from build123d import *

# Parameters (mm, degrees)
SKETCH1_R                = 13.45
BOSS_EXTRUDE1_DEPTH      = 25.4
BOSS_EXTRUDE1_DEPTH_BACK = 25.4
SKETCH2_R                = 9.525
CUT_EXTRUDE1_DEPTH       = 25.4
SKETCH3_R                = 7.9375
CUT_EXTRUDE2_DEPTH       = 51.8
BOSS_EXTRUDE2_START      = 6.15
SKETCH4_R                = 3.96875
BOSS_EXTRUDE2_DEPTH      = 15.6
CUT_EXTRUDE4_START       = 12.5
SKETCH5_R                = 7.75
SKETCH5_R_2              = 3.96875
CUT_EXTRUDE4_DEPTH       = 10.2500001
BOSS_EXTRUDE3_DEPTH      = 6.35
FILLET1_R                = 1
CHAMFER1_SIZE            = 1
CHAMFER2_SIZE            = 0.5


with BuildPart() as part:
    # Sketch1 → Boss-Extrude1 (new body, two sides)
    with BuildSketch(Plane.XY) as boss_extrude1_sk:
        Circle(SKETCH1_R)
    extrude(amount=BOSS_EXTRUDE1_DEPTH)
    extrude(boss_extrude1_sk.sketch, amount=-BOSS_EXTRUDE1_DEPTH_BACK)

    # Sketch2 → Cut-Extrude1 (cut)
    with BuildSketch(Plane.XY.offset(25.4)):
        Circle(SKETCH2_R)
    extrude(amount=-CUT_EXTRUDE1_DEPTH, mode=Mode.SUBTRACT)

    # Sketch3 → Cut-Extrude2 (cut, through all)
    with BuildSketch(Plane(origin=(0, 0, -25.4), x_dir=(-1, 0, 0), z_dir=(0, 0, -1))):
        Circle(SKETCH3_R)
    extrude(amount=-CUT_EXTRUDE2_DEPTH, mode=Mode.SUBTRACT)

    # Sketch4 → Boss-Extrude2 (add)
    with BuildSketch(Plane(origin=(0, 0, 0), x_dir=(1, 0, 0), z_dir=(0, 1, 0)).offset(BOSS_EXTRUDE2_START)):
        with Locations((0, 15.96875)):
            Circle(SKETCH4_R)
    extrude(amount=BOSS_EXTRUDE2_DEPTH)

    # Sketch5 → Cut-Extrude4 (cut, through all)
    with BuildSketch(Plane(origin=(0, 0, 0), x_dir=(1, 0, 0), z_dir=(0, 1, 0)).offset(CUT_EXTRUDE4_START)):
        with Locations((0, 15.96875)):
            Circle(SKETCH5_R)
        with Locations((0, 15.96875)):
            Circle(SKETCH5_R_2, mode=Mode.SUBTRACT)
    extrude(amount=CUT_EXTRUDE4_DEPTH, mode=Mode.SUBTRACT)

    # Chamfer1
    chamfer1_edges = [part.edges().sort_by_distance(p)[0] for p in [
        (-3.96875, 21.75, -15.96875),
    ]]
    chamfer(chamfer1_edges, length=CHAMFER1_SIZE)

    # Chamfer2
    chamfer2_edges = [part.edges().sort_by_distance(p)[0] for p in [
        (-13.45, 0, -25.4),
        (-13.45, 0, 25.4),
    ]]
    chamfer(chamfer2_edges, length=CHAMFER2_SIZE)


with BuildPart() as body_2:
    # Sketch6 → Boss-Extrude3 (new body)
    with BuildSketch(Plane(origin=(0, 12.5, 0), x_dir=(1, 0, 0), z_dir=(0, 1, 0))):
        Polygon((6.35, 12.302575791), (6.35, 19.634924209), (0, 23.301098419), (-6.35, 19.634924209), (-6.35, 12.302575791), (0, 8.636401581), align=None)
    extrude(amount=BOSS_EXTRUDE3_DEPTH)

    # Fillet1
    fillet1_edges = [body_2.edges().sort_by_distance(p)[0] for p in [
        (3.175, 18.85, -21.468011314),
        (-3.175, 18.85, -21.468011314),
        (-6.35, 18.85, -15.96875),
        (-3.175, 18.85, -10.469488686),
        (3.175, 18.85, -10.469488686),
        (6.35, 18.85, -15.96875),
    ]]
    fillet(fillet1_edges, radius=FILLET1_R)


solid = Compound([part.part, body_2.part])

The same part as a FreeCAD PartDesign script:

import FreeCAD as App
import Part
import Sketcher
from FreeCAD import Vector
Q = App.Units.Quantity


def edges_at(feature, points):
    """Names of the edges that pass closest to the given points."""
    edges = feature.Shape.Edges
    near = lambda p: min(range(len(edges)), key=lambda i: edges[i].distToShape(Part.Vertex(*p))[0])
    return sorted({f"Edge{near(p) + 1}" for p in points})


def add_polygon(sketch, points):
    """Adds a closed chain of lines whose ends are joined by coincident constraints."""
    first, n = sketch.GeometryCount, len(points)
    for a, b in zip(points, points[1:] + points[:1]):
        sketch.addGeometry(Part.LineSegment(App.Vector(*a, 0), App.Vector(*b, 0)), False)
    for i in range(n):
        sketch.addConstraint(Sketcher.Constraint("Coincident", first + i, 2, first + (i + 1) % n, 1))

doc = App.newDocument("Part")
body = doc.addObject("PartDesign::Body", "Body")

# Sketch on XY plane
sketch1 = doc.addObject("Sketcher::SketchObject", "Sketch")
body.addObject(sketch1)
sketch1.AttachmentSupport = (doc.XY_Plane, [""])
sketch1.MapMode = "FlatFace"
sketch1.addGeometry(Part.Circle(Vector(0, 0, 0), Vector(0, 0, 1), 13), False)
sketch1.addConstraint(Sketcher.Constraint("Coincident", 0, 3, -1, 1))
sketch1.addConstraint(Sketcher.Constraint("Diameter", 0, Q("26.9 mm")))
pad1 = doc.addObject("PartDesign::Pad", "Pad")
body.addObject(pad1)
pad1.Profile = sketch1
pad1.Type = "TwoLengths"
pad1.Length = 25.4
pad1.Length2 = 25.4

# Sketch on XY plane
sketch2 = doc.addObject("Sketcher::SketchObject", "Sketch001")
body.addObject(sketch2)
sketch2.AttachmentSupport = (doc.XY_Plane, [""])
sketch2.MapMode = "FlatFace"
sketch2.AttachmentOffset = App.Placement(Vector(0, 0, 25.4), App.Rotation())
sketch2.addGeometry(Part.Circle(Vector(0, 0, 0), Vector(0, 0, 1), 10), False)
sketch2.addConstraint(Sketcher.Constraint("Coincident", 0, 3, -1, 1))
sketch2.addConstraint(Sketcher.Constraint("Diameter", 0, Q("19.05 mm")))
pocket1 = doc.addObject("PartDesign::Pocket", "Pocket")
body.addObject(pocket1)
pocket1.Profile = sketch2
pocket1.Length = 25.4

# Sketch on XY plane
sketch3 = doc.addObject("Sketcher::SketchObject", "Sketch002")
body.addObject(sketch3)
sketch3.AttachmentSupport = (doc.XY_Plane, [""])
sketch3.MapMode = "FlatFace"
sketch3.AttachmentOffset = App.Placement(Vector(0, 0, -25.4), App.Rotation())
sketch3.addGeometry(Part.Circle(Vector(0, 0, 0), Vector(0, 0, 1), 8), False)
sketch3.addConstraint(Sketcher.Constraint("Coincident", 0, 3, -1, 1))
sketch3.addConstraint(Sketcher.Constraint("Diameter", 0, Q("15.875 mm")))
pocket2 = doc.addObject("PartDesign::Pocket", "Pocket001")
body.addObject(pocket2)
pocket2.Profile = sketch3
pocket2.Type = "ThroughAll"
pocket2.Reversed = True

# Sketch on XZ plane
sketch4 = doc.addObject("Sketcher::SketchObject", "Sketch003")
body.addObject(sketch4)
sketch4.AttachmentSupport = (doc.XZ_Plane, [""])
sketch4.MapMode = "FlatFace"
sketch4.AttachmentOffset = App.Placement(Vector(0, 0, -6.15), App.Rotation())
sketch4.addGeometry(Part.Circle(Vector(0, -16, 0), Vector(0, 0, 1), 4), False)
sketch4.addConstraint(Sketcher.Constraint("PointOnObject", 0, 3, -2))
sketch4.addConstraint(Sketcher.Constraint("Diameter", 0, Q("7.9375 mm")))
sketch4.addConstraint(Sketcher.Constraint("DistanceY", 0, 3, -1, 1, Q("15.96875 mm")))
pad2 = doc.addObject("PartDesign::Pad", "Pad001")
body.addObject(pad2)
pad2.Profile = sketch4
pad2.Length = 15.6
pad2.Reversed = True

# Sketch on XZ plane
sketch5 = doc.addObject("Sketcher::SketchObject", "Sketch004")
body.addObject(sketch5)
sketch5.AttachmentSupport = (doc.XZ_Plane, [""])
sketch5.MapMode = "FlatFace"
sketch5.AttachmentOffset = App.Placement(Vector(0, 0, -12.5), App.Rotation())
sketch5.addGeometry(Part.Circle(Vector(0, -16, 0), Vector(0, 0, 1), 7.8), False)
sketch5.addGeometry(Part.Circle(Vector(0, -16, 0), Vector(0, 0, 1), 4), False)
sketch5.addConstraint(Sketcher.Constraint("Coincident", 1, 3, 0, 3))
sketch5.addConstraint(Sketcher.Constraint("PointOnObject", 0, 3, -2))
sketch5.addConstraint(Sketcher.Constraint("Diameter", 0, Q("15.5 mm")))
sketch5.addConstraint(Sketcher.Constraint("Diameter", 1, Q("7.9375 mm")))
sketch5.addConstraint(Sketcher.Constraint("DistanceY", 0, 3, -1, 1, Q("15.96875 mm")))
pocket3 = doc.addObject("PartDesign::Pocket", "Pocket002")
body.addObject(pocket3)
pocket3.Profile = sketch5
pocket3.Type = "ThroughAll"
doc.recompute()

chamfer = doc.addObject("PartDesign::Chamfer", "Chamfer")
body.addObject(chamfer)
chamfer.Base = (pocket3, edges_at(pocket3, [(-3.969, 21.75, -15.969)]))
chamfer.Size = 1
doc.recompute()

chamfer2 = doc.addObject("PartDesign::Chamfer", "Chamfer001")
body.addObject(chamfer2)
chamfer2.Base = (chamfer, edges_at(chamfer, [(-13.45, 0, -25.4), (-13.45, 0, 25.4)]))
chamfer2.Size = 0.5
body2 = doc.addObject("PartDesign::Body", "Body001")

# Sketch on XZ plane
sketch6 = doc.addObject("Sketcher::SketchObject", "Sketch005")
body2.addObject(sketch6)
sketch6.AttachmentSupport = (doc.getObject("XZ_Plane001"), [""])
sketch6.MapMode = "FlatFace"
sketch6.AttachmentOffset = App.Placement(Vector(0, 0, -12.5), App.Rotation())
add_polygon(sketch6, [(6, -12), (6, -20), (0, -23), (-6, -20), (-6, -12), (0, -9)])  # lines 0-5
sketch6.addConstraint(Sketcher.Constraint("Vertical", 0))
sketch6.addConstraint(Sketcher.Constraint("Vertical", 3))
sketch6.addConstraint(Sketcher.Constraint("Symmetric", 0, 2, 2, 2, -2))
sketch6.addConstraint(Sketcher.Constraint("PointOnObject", 1, 2, -2))
sketch6.addConstraint(Sketcher.Constraint("PointOnObject", 4, 2, -2))
sketch6.addConstraint(Sketcher.Constraint("Parallel", 1, 4))
sketch6.addConstraint(Sketcher.Constraint("Parallel", 2, 5))
sketch6.addConstraint(Sketcher.Constraint("Angle", 1, Q("-150 deg")))
sketch6.addConstraint(Sketcher.Constraint("DistanceX", 2, 2, 0, 2, Q("12.7 mm")))
sketch6.addConstraint(Sketcher.Constraint("DistanceY", 0, 2, 0, 1, Q("7.332348 mm")))
sketch6.addConstraint(Sketcher.Constraint("DistanceY", 1, 2, -1, 1, Q("23.301098 mm")))
pad3 = doc.addObject("PartDesign::Pad", "Pad002")
body2.addObject(pad3)
pad3.Profile = sketch6
pad3.Length = 6.35
pad3.Reversed = True
doc.recompute()

fillet = doc.addObject("PartDesign::Fillet", "Fillet")
body2.addObject(fillet)
fillet.Base = (pad3, edges_at(pad3, [
    (3.175, 18.85, -21.468),
    (-3.175, 18.85, -21.468),
    (-6.35, 18.85, -15.969),
    (-3.175, 18.85, -10.469),
    (3.175, 18.85, -10.469),
    (6.35, 18.85, -15.969),
]))
fillet.Radius = 1

doc.recompute()
